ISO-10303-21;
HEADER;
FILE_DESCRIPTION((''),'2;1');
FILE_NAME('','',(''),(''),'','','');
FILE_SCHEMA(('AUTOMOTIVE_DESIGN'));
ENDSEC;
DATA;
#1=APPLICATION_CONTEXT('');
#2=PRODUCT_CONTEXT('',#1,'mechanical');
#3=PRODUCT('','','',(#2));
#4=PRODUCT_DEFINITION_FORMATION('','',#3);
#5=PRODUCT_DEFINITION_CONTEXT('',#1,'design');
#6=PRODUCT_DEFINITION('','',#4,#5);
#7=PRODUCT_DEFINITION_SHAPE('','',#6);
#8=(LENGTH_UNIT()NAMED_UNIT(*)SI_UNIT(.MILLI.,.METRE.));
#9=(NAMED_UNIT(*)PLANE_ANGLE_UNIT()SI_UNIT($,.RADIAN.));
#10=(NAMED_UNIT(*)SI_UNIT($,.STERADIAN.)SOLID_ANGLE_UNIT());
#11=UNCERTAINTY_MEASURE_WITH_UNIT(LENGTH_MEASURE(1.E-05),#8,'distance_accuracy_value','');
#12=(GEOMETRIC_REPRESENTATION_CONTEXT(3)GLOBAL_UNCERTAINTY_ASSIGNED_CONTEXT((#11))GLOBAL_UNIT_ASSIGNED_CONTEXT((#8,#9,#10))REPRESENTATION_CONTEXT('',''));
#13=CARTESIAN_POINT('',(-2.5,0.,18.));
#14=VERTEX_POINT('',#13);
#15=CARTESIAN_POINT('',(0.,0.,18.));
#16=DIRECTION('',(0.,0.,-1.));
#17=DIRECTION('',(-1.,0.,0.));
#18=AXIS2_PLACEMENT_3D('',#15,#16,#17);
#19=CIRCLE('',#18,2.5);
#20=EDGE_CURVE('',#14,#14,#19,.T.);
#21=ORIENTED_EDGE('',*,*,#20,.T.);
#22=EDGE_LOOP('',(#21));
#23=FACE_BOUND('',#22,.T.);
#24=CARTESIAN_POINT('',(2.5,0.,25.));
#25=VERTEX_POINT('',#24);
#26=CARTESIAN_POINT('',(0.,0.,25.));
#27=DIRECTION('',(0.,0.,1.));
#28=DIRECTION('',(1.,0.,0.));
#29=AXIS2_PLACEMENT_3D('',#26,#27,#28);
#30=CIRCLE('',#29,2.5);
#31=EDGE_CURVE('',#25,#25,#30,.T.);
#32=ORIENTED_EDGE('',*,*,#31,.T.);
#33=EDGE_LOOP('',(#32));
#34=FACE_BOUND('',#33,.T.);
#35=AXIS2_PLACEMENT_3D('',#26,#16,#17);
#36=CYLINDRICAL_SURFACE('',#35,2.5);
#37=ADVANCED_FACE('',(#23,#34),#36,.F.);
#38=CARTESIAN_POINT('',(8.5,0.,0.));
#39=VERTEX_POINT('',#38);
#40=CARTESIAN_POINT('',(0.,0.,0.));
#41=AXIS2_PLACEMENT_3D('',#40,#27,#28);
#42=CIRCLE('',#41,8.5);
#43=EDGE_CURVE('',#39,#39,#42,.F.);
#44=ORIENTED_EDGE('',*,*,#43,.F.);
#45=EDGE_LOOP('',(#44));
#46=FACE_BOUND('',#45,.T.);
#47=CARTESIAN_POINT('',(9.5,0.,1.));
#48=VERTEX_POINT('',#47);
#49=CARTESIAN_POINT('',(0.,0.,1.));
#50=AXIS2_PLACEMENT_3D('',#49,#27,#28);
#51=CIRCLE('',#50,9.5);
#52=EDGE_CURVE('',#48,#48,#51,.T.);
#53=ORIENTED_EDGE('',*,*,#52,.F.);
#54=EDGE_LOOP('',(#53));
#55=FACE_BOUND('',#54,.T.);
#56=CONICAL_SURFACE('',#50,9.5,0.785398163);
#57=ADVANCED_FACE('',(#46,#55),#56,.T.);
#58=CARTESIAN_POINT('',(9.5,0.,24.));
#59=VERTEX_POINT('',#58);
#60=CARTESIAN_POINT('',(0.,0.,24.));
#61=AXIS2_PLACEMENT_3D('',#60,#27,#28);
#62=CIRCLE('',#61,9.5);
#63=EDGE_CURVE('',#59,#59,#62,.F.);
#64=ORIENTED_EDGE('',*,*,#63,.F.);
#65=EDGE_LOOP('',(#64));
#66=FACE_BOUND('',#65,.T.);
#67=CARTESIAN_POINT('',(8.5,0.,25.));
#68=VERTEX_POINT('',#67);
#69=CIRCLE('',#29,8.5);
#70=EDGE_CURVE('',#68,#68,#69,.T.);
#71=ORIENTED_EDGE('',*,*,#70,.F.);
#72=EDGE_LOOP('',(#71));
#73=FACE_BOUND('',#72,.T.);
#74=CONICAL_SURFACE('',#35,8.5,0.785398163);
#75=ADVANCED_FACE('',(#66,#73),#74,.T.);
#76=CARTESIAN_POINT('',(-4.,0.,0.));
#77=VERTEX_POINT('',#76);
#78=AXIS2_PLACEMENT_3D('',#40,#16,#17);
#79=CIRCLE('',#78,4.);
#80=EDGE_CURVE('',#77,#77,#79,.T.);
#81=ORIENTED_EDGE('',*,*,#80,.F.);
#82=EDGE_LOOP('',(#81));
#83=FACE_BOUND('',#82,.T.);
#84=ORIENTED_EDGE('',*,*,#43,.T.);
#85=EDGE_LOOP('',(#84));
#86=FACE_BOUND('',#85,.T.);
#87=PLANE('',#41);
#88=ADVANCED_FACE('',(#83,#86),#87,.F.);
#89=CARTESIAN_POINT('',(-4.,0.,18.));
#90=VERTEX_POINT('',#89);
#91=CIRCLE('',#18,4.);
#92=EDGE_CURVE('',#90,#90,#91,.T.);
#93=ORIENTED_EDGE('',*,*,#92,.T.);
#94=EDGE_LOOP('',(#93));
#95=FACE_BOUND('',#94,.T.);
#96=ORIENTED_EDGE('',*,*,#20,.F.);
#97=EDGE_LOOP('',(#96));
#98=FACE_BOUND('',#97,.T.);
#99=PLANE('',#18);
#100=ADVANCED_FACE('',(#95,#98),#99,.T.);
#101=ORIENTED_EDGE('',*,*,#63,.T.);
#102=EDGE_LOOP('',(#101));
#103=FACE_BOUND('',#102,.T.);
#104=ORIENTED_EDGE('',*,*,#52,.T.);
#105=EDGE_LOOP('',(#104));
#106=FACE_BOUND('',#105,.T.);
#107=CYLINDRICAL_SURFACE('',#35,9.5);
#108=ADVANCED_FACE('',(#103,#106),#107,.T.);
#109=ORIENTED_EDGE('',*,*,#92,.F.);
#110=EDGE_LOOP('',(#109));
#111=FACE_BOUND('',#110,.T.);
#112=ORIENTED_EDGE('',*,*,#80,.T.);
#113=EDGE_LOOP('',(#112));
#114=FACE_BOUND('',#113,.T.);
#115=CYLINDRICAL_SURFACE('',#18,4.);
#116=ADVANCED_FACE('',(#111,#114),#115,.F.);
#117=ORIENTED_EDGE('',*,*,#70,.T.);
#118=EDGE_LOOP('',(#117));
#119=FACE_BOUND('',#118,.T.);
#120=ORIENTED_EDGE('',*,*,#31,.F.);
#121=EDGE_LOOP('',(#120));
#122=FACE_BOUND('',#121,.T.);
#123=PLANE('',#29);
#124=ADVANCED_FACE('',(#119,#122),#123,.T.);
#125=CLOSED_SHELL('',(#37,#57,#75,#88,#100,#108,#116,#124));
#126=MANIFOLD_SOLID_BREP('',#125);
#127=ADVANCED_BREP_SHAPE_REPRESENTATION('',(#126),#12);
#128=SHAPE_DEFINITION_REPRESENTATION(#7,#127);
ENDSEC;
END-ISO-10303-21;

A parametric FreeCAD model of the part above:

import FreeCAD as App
import Part
import Sketcher
Q = App.Units.Quantity


def edges_at(feature, points):
    """Names of the edges that pass closest to the given points."""
    edges = feature.Shape.Edges
    near = lambda p: min(range(len(edges)), key=lambda i: edges[i].distToShape(Part.Vertex(*p))[0])
    return sorted({f"Edge{near(p) + 1}" for p in points})

doc = App.newDocument("Part")
body = doc.addObject("PartDesign::Body", "Body")

# Sketch on XY plane
sketch1 = body.newObject("Sketcher::SketchObject", "Sketch")
sketch1.AttachmentSupport = (doc.getObject("XY_Plane"), [""])
sketch1.MapMode = "FlatFace"
sketch1.addGeometry([
    Part.Circle(App.Vector(0, 0, 0), App.Vector(0, 0, 1), 9.5),
    Part.Circle(App.Vector(0, 0, 0), App.Vector(0, 0, 1), 2.5),
], False)
sketch1.addConstraint([
    Sketcher.Constraint("Coincident", 0, 3, -1, 1),
    Sketcher.Constraint("Coincident", 1, 3, -1, 1),
    Sketcher.Constraint("Diameter", 0, Q("19 mm")),
    Sketcher.Constraint("Diameter", 1, Q("5 mm")),
])
pad1 = body.newObject("PartDesign::Pad", "Pad")
pad1.Profile = sketch1
pad1.Length = 25
doc.recompute()

chamfer = body.newObject("PartDesign::Chamfer", "Chamfer")
chamfer.Base = (pad1, edges_at(pad1, [(-9.5, 0, 0), (-9.5, 0, 25)]))
chamfer.Size = 1

# Sketch on XY plane
sketch2 = body.newObject("Sketcher::SketchObject", "Sketch001")
sketch2.AttachmentSupport = (doc.getObject("XY_Plane"), [""])
sketch2.MapMode = "FlatFace"
sketch2.addGeometry(Part.Circle(App.Vector(0, 0, 0), App.Vector(0, 0, 1), 4), False)
sketch2.addConstraint([
    Sketcher.Constraint("Coincident", 0, 3, -1, 1),
    Sketcher.Constraint("Diameter", 0, Q("8 mm")),
])
pocket1 = body.newObject("PartDesign::Pocket", "Pocket")
pocket1.Profile = sketch2
pocket1.Length = 18
pocket1.Reversed = True

doc.recompute()
